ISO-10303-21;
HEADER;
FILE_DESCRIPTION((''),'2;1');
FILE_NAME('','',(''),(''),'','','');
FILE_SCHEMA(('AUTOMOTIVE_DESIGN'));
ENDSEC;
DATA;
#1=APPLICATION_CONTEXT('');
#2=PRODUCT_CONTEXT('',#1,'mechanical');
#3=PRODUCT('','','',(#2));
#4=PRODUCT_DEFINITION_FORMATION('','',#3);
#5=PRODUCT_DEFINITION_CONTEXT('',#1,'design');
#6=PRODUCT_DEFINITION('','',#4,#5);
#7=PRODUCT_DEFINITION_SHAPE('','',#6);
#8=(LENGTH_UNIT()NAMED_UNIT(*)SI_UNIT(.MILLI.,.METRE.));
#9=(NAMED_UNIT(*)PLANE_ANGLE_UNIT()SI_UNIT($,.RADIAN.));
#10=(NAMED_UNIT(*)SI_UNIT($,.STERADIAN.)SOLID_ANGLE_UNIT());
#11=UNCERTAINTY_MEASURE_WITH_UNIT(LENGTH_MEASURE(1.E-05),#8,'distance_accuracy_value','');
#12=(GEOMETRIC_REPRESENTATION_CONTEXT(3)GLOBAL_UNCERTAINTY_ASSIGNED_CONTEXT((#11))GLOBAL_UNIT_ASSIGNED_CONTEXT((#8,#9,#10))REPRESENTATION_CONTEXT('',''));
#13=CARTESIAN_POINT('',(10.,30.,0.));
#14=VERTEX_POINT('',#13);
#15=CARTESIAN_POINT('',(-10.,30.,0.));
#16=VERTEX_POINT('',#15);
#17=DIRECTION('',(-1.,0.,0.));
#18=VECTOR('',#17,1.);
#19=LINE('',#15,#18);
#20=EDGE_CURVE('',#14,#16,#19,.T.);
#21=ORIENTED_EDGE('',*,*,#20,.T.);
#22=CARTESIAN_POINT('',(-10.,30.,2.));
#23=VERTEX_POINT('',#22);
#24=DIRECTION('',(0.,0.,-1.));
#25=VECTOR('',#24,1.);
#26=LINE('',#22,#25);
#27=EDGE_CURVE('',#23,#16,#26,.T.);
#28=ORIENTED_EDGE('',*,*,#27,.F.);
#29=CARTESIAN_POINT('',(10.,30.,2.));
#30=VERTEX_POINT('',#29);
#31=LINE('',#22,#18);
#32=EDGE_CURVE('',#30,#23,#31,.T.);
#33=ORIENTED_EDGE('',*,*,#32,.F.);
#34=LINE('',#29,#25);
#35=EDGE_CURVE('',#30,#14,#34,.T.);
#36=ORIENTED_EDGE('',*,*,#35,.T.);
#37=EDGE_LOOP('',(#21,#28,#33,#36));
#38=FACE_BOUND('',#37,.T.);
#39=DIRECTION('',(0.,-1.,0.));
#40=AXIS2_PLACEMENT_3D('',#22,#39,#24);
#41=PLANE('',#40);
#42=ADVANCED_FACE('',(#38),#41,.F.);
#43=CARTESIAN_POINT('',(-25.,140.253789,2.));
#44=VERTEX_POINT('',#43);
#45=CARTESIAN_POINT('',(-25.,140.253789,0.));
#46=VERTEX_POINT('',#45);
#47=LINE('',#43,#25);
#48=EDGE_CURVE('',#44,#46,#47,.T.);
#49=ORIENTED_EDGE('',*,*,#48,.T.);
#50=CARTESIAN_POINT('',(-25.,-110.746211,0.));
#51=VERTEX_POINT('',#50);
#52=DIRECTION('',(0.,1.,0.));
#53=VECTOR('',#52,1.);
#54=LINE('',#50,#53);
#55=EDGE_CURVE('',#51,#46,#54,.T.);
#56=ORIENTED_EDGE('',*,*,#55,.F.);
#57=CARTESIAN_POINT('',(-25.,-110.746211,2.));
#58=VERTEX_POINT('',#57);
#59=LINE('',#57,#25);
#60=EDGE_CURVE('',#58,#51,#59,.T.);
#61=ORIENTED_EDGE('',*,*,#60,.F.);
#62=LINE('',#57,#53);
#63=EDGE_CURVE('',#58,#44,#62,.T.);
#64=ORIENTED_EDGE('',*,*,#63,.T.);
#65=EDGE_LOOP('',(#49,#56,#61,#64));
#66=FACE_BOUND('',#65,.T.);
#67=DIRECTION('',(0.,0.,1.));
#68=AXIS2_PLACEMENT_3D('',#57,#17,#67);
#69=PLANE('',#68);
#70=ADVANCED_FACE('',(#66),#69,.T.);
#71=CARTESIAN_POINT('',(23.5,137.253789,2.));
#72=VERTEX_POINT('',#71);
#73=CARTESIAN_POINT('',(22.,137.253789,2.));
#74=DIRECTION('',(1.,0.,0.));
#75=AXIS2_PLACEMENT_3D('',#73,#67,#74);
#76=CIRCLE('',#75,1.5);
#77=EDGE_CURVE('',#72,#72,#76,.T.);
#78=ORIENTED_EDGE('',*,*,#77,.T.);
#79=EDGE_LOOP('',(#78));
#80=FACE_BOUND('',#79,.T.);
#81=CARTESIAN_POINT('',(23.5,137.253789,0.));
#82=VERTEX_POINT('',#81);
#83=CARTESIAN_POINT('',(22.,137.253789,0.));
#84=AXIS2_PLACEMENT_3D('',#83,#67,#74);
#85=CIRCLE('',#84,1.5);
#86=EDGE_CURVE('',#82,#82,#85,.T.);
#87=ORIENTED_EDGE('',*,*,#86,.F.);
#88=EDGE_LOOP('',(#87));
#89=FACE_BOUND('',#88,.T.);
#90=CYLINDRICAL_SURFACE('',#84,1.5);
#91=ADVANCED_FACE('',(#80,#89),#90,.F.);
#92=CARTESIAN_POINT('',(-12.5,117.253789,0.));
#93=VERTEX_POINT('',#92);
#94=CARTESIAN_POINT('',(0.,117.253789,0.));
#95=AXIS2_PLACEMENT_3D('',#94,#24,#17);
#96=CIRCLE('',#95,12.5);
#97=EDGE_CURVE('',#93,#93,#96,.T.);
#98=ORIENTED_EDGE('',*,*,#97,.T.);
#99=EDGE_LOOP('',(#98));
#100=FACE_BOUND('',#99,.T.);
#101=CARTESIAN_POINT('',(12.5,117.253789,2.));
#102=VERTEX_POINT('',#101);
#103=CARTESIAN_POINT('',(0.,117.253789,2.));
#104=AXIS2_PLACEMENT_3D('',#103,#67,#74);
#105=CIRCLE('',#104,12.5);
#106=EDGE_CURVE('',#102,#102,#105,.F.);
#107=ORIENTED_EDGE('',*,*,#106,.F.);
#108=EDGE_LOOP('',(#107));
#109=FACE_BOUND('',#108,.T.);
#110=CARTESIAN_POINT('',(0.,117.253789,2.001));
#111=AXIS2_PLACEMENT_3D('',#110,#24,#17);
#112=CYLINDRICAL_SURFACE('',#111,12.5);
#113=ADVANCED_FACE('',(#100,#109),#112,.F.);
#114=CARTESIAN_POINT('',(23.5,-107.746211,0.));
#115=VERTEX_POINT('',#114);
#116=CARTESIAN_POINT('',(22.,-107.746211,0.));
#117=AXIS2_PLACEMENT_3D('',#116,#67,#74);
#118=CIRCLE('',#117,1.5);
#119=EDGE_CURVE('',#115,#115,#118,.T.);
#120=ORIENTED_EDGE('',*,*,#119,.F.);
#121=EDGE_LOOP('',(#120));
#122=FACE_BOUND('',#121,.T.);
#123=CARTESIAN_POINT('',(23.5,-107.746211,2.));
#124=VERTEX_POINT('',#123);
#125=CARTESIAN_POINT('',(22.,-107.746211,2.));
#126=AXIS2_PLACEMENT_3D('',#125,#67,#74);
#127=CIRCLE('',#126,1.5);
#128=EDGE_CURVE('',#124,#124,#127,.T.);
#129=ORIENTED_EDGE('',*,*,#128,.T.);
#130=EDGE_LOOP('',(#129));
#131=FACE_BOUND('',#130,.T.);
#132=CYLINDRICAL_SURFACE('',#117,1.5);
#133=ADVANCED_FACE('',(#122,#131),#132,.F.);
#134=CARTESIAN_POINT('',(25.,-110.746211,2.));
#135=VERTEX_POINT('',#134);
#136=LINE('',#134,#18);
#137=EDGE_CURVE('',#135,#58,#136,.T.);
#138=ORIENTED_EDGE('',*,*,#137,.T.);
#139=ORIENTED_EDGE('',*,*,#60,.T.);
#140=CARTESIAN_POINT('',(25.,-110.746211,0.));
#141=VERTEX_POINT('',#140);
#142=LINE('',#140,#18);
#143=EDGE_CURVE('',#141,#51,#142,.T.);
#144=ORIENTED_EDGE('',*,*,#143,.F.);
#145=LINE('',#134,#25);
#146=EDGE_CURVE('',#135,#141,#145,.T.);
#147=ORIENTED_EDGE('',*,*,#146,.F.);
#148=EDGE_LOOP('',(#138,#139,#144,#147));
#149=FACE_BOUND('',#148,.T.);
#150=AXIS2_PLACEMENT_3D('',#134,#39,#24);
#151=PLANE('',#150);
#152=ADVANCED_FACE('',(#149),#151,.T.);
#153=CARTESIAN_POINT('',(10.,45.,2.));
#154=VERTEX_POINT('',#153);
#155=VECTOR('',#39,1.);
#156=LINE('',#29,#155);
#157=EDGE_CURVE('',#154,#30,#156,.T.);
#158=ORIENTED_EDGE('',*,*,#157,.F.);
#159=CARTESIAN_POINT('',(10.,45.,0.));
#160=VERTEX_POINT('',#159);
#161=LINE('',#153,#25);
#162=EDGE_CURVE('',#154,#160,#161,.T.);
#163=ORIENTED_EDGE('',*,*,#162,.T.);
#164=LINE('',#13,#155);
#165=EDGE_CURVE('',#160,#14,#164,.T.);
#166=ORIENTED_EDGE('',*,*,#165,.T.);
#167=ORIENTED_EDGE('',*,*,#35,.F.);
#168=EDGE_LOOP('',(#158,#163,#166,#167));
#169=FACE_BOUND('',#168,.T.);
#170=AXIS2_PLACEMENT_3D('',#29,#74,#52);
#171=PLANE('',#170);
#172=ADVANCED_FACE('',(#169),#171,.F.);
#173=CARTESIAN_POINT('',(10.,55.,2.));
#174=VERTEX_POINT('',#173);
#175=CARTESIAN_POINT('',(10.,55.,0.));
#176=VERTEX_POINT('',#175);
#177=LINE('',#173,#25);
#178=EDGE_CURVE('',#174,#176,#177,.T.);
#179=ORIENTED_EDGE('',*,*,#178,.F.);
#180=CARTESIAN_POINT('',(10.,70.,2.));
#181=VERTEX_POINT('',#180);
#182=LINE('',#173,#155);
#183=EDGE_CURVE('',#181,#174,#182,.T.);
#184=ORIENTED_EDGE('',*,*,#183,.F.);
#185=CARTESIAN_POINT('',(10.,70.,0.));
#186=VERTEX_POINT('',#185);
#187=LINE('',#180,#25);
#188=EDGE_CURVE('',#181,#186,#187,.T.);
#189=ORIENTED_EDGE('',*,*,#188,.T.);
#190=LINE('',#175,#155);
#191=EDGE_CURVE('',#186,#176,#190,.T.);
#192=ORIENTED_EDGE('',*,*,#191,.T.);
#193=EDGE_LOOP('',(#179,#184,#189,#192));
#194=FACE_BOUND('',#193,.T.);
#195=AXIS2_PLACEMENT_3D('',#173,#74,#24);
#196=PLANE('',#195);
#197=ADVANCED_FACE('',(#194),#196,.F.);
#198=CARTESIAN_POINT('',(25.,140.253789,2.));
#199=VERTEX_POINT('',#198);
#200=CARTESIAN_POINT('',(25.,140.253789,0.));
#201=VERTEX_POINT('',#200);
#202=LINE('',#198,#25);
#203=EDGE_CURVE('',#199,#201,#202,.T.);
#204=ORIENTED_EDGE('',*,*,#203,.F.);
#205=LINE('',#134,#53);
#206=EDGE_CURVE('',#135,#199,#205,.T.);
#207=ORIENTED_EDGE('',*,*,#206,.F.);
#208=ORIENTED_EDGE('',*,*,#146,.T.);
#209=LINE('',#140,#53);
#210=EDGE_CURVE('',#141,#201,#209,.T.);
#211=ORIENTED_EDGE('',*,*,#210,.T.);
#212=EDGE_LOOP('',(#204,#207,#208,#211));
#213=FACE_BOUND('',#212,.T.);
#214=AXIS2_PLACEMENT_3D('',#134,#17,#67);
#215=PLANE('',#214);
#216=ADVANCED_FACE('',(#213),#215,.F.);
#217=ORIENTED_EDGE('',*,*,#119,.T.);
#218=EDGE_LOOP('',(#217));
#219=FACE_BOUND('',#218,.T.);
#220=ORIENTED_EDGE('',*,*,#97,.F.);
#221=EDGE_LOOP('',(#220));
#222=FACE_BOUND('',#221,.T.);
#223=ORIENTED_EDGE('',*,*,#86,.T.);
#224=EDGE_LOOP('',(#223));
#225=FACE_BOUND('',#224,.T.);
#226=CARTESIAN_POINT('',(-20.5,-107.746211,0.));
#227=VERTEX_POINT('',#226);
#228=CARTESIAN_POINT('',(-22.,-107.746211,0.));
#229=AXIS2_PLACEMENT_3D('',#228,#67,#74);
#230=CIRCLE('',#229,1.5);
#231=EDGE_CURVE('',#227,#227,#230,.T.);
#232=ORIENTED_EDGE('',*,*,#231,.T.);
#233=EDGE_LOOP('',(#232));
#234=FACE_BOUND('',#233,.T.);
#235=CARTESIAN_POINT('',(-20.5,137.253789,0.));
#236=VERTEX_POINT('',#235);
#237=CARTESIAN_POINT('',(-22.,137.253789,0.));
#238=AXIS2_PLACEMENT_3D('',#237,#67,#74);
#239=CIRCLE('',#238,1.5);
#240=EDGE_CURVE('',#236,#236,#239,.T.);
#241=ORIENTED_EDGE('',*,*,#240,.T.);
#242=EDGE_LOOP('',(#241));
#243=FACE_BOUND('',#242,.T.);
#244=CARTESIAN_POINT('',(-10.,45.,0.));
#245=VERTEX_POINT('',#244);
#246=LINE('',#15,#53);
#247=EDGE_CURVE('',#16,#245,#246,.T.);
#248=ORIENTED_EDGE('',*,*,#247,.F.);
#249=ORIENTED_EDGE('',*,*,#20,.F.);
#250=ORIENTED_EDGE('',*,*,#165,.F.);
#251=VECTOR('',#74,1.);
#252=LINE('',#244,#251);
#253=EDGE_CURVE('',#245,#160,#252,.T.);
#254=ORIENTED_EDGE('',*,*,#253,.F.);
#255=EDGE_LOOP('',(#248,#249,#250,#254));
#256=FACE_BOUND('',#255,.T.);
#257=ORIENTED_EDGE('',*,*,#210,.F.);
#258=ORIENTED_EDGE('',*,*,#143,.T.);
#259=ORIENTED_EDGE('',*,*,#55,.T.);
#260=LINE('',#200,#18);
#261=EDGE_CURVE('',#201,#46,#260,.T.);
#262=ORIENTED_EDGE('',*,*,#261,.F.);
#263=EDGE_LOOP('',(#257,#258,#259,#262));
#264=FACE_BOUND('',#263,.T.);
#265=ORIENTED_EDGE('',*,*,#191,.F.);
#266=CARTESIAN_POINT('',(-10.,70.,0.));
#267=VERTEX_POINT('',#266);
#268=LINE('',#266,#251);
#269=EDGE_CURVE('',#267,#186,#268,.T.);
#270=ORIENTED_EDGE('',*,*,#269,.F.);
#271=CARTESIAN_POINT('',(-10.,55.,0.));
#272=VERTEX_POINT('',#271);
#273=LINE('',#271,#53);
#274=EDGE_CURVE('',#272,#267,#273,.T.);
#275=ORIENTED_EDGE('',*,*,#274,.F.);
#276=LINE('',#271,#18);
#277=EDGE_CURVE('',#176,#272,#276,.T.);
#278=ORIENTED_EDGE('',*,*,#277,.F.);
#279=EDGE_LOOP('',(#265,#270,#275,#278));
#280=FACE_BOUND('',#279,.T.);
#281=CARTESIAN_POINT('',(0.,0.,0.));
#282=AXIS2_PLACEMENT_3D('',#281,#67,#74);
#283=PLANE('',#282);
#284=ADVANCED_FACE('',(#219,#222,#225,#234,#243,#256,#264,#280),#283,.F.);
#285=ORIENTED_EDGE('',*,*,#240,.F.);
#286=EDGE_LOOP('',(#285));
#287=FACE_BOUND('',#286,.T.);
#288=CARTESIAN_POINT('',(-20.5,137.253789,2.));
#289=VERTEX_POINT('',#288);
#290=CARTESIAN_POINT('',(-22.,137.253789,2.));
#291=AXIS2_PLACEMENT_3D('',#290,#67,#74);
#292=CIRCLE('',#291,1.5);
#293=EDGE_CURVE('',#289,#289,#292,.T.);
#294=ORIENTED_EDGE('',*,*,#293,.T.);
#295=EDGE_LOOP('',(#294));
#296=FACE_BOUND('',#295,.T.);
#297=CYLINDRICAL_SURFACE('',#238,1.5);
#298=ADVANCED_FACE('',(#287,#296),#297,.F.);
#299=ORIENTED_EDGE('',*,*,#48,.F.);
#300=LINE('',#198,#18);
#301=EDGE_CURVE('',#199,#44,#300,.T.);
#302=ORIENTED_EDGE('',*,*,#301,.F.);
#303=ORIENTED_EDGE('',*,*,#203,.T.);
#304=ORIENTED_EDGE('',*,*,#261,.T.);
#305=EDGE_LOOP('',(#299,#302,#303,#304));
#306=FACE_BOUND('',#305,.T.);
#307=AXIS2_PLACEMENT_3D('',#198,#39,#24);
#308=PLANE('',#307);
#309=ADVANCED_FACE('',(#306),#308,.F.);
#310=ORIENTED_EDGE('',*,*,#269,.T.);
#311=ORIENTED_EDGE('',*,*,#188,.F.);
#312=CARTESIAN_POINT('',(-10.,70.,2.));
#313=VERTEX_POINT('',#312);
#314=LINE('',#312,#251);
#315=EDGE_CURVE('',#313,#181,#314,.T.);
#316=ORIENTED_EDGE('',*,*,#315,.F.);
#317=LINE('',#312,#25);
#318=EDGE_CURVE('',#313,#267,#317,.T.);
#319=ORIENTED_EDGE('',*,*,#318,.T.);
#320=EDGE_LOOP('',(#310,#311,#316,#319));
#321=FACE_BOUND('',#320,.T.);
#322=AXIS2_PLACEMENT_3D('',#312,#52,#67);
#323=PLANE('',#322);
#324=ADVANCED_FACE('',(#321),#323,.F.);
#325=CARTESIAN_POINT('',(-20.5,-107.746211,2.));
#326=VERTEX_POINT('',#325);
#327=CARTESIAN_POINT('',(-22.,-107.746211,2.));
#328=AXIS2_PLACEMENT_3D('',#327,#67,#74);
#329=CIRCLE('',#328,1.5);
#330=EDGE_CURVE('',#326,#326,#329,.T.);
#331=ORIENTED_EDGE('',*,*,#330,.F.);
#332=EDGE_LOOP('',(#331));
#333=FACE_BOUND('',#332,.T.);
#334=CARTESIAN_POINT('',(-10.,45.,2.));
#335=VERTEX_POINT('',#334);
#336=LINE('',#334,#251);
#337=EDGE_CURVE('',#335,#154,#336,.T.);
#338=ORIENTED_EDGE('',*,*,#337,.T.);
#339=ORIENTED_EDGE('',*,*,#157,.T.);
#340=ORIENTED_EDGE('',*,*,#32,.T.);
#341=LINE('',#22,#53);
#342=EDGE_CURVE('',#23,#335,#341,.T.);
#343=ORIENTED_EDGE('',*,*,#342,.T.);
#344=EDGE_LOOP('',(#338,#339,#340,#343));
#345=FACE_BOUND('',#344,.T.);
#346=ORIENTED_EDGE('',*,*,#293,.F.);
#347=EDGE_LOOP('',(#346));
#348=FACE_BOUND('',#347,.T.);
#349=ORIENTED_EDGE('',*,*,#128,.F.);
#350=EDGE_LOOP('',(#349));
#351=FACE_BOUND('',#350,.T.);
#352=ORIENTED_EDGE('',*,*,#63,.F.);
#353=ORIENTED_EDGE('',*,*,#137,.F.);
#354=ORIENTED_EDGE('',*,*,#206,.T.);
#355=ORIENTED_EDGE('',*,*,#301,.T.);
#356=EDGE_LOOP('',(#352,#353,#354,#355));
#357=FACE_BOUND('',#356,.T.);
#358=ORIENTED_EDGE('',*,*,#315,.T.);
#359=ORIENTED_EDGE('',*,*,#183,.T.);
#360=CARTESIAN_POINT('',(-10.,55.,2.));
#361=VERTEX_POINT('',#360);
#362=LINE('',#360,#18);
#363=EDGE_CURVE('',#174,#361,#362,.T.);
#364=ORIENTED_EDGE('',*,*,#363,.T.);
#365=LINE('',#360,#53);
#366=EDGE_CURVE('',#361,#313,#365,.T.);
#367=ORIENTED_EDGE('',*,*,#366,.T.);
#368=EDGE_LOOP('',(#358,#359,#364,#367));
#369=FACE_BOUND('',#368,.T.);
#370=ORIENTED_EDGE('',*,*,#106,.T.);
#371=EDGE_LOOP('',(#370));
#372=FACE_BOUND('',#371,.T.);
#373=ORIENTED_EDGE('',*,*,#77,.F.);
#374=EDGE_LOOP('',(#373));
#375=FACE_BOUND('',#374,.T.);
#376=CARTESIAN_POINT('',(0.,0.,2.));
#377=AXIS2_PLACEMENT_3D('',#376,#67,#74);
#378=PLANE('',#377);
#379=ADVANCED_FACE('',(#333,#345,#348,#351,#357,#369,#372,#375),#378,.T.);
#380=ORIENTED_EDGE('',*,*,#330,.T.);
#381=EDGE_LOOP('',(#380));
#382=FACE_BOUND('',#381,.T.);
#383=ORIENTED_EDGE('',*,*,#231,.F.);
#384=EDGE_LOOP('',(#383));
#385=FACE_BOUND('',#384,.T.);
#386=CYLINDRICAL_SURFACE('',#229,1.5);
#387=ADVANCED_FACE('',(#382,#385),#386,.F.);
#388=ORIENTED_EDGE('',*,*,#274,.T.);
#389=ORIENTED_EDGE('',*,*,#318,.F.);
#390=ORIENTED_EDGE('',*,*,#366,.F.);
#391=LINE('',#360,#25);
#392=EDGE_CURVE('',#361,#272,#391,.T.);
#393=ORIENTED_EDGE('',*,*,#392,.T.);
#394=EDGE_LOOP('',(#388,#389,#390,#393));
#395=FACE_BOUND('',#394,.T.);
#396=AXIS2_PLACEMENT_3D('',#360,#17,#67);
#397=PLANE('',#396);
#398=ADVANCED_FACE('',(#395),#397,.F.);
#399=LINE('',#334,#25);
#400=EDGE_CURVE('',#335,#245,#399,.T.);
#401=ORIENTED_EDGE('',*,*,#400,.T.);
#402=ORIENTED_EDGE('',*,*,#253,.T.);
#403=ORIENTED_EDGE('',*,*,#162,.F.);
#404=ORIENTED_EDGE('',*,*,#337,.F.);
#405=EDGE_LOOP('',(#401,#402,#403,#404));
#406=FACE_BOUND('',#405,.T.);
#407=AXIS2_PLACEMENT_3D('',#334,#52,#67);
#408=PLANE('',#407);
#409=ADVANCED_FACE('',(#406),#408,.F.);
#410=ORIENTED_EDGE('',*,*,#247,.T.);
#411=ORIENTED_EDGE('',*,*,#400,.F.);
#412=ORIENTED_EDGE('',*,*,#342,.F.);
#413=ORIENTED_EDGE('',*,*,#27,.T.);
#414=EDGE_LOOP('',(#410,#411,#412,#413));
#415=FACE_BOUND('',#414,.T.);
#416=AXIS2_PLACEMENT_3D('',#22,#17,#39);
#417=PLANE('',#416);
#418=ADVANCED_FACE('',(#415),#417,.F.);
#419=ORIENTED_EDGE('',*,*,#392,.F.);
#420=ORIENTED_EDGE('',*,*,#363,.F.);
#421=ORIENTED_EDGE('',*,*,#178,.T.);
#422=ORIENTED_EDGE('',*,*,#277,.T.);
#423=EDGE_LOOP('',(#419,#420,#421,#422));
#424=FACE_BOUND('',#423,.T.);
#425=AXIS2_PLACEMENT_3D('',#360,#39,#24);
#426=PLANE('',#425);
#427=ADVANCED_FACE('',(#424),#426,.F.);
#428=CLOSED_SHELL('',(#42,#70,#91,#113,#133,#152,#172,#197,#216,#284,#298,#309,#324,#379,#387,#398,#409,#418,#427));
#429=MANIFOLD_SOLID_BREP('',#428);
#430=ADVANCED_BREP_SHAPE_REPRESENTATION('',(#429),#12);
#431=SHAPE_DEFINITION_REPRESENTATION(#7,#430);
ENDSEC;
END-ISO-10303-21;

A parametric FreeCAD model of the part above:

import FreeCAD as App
import Part
import Sketcher
from FreeCAD import Vector
Q = App.Units.Quantity

doc = App.newDocument("Part")
params = doc.addObject("Spreadsheet::Sheet", "Params")
for row, (alias, value) in enumerate([
    ("sketch1_width", "50 mm"),
    ("sketch1_height", "251 mm"),
    ("pad1_length", "2 mm"),
    ("sketch2_diameter", "25 mm"),
    ("sketch3_diameter", "3 mm"),
    ("pocket2_length", "2 mm"),
    ("sketch4_width", "20 mm"),
    ("sketch4_height", "15 mm"),
    ("pocket3_length", "2 mm"),
], start=1):
    params.set(f"A{row}", alias)
    params.set(f"B{row}", "=" + value)
    params.setAlias(f"B{row}", alias)

body = doc.addObject("PartDesign::Body", "Body")

sketch1 = body.newObject("Sketcher::SketchObject", "Sketch")
sketch1.AttachmentSupport = (doc.getObject("XY_Plane"), [""])
sketch1.MapMode = "FlatFace"
sketch1.addGeometry(Part.LineSegment(Vector(-25, 140, 0), Vector(-25, -111, 0)), False)
sketch1.addGeometry(Part.LineSegment(Vector(-25, -111, 0), Vector(25, -111, 0)), False)
sketch1.addGeometry(Part.LineSegment(Vector(25, -111, 0), Vector(25, 140, 0)), False)
sketch1.addGeometry(Part.LineSegment(Vector(25, 140, 0), Vector(-25, 140, 0)), False)
sketch1.addConstraint(Sketcher.Constraint("Coincident", 0, 2, 1, 1))
sketch1.addConstraint(Sketcher.Constraint("Coincident", 1, 2, 2, 1))
sketch1.addConstraint(Sketcher.Constraint("Coincident", 2, 2, 3, 1))
sketch1.addConstraint(Sketcher.Constraint("Coincident", 3, 2, 0, 1))
sketch1.addConstraint(Sketcher.Constraint("Vertical", 0))
sketch1.addConstraint(Sketcher.Constraint("Horizontal", 1))
sketch1.addConstraint(Sketcher.Constraint("Vertical", 2))
sketch1.addConstraint(Sketcher.Constraint("Horizontal", 3))
sketch1.addConstraint(Sketcher.Constraint("DistanceX", 1, 1, 1, 2, Q("50 mm")))
sketch1.addConstraint(Sketcher.Constraint("DistanceY", 0, 2, 0, 1, Q("251 mm")))
sketch1.addConstraint(Sketcher.Constraint("DistanceX", 0, 2, -1, 1, Q("25 mm")))
sketch1.addConstraint(Sketcher.Constraint("DistanceY", 0, 2, -1, 1, Q("110.746211 mm")))
sketch1.setExpression("Constraints[8]", "Params.sketch1_width")
sketch1.setExpression("Constraints[9]", "Params.sketch1_height")
pad1 = body.newObject("PartDesign::Pad", "Pad")
pad1.Profile = sketch1
pad1.setExpression("Length", "Params.pad1_length")

sketch2 = body.newObject("Sketcher::SketchObject", "Sketch001")
sketch2.AttachmentSupport = (doc.getObject("XY_Plane"), [""])
sketch2.MapMode = "FlatFace"
sketch2.addGeometry(Part.Circle(Vector(0, 117, 0), Vector(0, 0, 1), 12), False)
sketch2.addConstraint(Sketcher.Constraint("PointOnObject", 0, 3, -2))
sketch2.addConstraint(Sketcher.Constraint("Diameter", 0, Q("25 mm")))
sketch2.addConstraint(Sketcher.Constraint("DistanceY", -1, 1, 0, 3, Q("117.253789 mm")))
sketch2.setExpression("Constraints[1]", "Params.sketch2_diameter")
pocket1 = body.newObject("PartDesign::Pocket", "Pocket")
pocket1.Profile = sketch2
pocket1.Type = "UpToFirst"
pocket1.Reversed = True

sketch3 = body.newObject("Sketcher::SketchObject", "Sketch002")
sketch3.AttachmentSupport = (doc.getObject("XY_Plane"), [""])
sketch3.MapMode = "FlatFace"
sketch3.AttachmentOffset = App.Placement(Vector(0, 0, 2), App.Rotation())
sketch3.addGeometry(Part.Circle(Vector(-22, 137.3, 0), Vector(0, 0, 1), 1.5), False)
sketch3.addGeometry(Part.Circle(Vector(22, 137.3, 0), Vector(0, 0, 1), 1.5), False)
sketch3.addGeometry(Part.Circle(Vector(-22, -107.7, 0), Vector(0, 0, 1), 1.5), False)
sketch3.addGeometry(Part.Circle(Vector(22, -107.7, 0), Vector(0, 0, 1), 1.5), False)
sketch3.addConstraint(Sketcher.Constraint("Equal", 0, 1))
sketch3.addConstraint(Sketcher.Constraint("Equal", 1, 2))
sketch3.addConstraint(Sketcher.Constraint("Equal", 2, 3))
sketch3.addConstraint(Sketcher.Constraint("Symmetric", 0, 3, 1, 3, -2))
sketch3.addConstraint(Sketcher.Constraint("Symmetric", 2, 3, 3, 3, -2))
sketch3.addConstraint(Sketcher.Constraint("Vertical", 0, 3, 2, 3))
sketch3.addConstraint(Sketcher.Constraint("Diameter", 0, Q("3 mm")))
sketch3.addConstraint(Sketcher.Constraint("DistanceX", 0, 3, -1, 1, Q("22 mm")))
sketch3.addConstraint(Sketcher.Constraint("DistanceY", 2, 3, 0, 3, Q("245 mm")))
sketch3.addConstraint(Sketcher.Constraint("DistanceY", -1, 1, 0, 3, Q("137.253789 mm")))
sketch3.setExpression("Constraints[6]", "Params.sketch3_diameter")
pocket2 = body.newObject("PartDesign::Pocket", "Pocket001")
pocket2.Profile = sketch3
pocket2.setExpression("Length", "Params.pocket2_length")

sketch4 = body.newObject("Sketcher::SketchObject", "Sketch003")
sketch4.AttachmentSupport = (doc.getObject("XY_Plane"), [""])
sketch4.MapMode = "FlatFace"
sketch4.addGeometry(Part.LineSegment(Vector(10, 70, 0), Vector(10, 55, 0)), False)
sketch4.addGeometry(Part.LineSegment(Vector(10, 55, 0), Vector(-10, 55, 0)), False)
sketch4.addGeometry(Part.LineSegment(Vector(-10, 55, 0), Vector(-10, 70, 0)), False)
sketch4.addGeometry(Part.LineSegment(Vector(-10, 70, 0), Vector(10, 70, 0)), False)
sketch4.addGeometry(Part.LineSegment(Vector(10, 45, 0), Vector(10, 30, 0)), False)
sketch4.addGeometry(Part.LineSegment(Vector(10, 30, 0), Vector(-10, 30, 0)), False)
sketch4.addGeometry(Part.LineSegment(Vector(-10, 30, 0), Vector(-10, 45, 0)), False)
sketch4.addGeometry(Part.LineSegment(Vector(-10, 45, 0), Vector(10, 45, 0)), False)
sketch4.addConstraint(Sketcher.Constraint("Coincident", 0, 2, 1, 1))
sketch4.addConstraint(Sketcher.Constraint("Coincident", 1, 2, 2, 1))
sketch4.addConstraint(Sketcher.Constraint("Coincident", 2, 2, 3, 1))
sketch4.addConstraint(Sketcher.Constraint("Coincident", 3, 2, 0, 1))
sketch4.addConstraint(Sketcher.Constraint("Coincident", 4, 2, 5, 1))
sketch4.addConstraint(Sketcher.Constraint("Coincident", 5, 2, 6, 1))
sketch4.addConstraint(Sketcher.Constraint("Coincident", 6, 2, 7, 1))
sketch4.addConstraint(Sketcher.Constraint("Coincident", 7, 2, 4, 1))
sketch4.addConstraint(Sketcher.Constraint("Vertical", 0))
sketch4.addConstraint(Sketcher.Constraint("Horizontal", 1))
sketch4.addConstraint(Sketcher.Constraint("Vertical", 2))
sketch4.addConstraint(Sketcher.Constraint("Horizontal", 3))
sketch4.addConstraint(Sketcher.Constraint("Vertical", 4))
sketch4.addConstraint(Sketcher.Constraint("Horizontal", 5))
sketch4.addConstraint(Sketcher.Constraint("Vertical", 6))
sketch4.addConstraint(Sketcher.Constraint("Horizontal", 7))
sketch4.addConstraint(Sketcher.Constraint("Vertical", 3, 2, 4, 2))
sketch4.addConstraint(Sketcher.Constraint("Vertical", 2, 2, 5, 2))
sketch4.addConstraint(Sketcher.Constraint("Equal", 2, 4))
sketch4.addConstraint(Sketcher.Constraint("DistanceX", 1, 2, 1, 1, Q("20 mm")))
sketch4.addConstraint(Sketcher.Constraint("DistanceY", 0, 2, 0, 1, Q("15 mm")))
sketch4.addConstraint(Sketcher.Constraint("DistanceX", -1, 1, 0, 2, Q("10 mm")))
sketch4.addConstraint(Sketcher.Constraint("DistanceY", -1, 1, 0, 2, Q("55 mm")))
sketch4.addConstraint(Sketcher.Constraint("DistanceY", -1, 1, 4, 2, Q("30 mm")))
sketch4.setExpression("Constraints[19]", "Params.sketch4_width")
sketch4.setExpression("Constraints[20]", "Params.sketch4_height")
pocket3 = body.newObject("PartDesign::Pocket", "Pocket002")
pocket3.Profile = sketch4
pocket3.setExpression("Length", "Params.pocket3_length")
pocket3.Reversed = True

doc.recompute()
